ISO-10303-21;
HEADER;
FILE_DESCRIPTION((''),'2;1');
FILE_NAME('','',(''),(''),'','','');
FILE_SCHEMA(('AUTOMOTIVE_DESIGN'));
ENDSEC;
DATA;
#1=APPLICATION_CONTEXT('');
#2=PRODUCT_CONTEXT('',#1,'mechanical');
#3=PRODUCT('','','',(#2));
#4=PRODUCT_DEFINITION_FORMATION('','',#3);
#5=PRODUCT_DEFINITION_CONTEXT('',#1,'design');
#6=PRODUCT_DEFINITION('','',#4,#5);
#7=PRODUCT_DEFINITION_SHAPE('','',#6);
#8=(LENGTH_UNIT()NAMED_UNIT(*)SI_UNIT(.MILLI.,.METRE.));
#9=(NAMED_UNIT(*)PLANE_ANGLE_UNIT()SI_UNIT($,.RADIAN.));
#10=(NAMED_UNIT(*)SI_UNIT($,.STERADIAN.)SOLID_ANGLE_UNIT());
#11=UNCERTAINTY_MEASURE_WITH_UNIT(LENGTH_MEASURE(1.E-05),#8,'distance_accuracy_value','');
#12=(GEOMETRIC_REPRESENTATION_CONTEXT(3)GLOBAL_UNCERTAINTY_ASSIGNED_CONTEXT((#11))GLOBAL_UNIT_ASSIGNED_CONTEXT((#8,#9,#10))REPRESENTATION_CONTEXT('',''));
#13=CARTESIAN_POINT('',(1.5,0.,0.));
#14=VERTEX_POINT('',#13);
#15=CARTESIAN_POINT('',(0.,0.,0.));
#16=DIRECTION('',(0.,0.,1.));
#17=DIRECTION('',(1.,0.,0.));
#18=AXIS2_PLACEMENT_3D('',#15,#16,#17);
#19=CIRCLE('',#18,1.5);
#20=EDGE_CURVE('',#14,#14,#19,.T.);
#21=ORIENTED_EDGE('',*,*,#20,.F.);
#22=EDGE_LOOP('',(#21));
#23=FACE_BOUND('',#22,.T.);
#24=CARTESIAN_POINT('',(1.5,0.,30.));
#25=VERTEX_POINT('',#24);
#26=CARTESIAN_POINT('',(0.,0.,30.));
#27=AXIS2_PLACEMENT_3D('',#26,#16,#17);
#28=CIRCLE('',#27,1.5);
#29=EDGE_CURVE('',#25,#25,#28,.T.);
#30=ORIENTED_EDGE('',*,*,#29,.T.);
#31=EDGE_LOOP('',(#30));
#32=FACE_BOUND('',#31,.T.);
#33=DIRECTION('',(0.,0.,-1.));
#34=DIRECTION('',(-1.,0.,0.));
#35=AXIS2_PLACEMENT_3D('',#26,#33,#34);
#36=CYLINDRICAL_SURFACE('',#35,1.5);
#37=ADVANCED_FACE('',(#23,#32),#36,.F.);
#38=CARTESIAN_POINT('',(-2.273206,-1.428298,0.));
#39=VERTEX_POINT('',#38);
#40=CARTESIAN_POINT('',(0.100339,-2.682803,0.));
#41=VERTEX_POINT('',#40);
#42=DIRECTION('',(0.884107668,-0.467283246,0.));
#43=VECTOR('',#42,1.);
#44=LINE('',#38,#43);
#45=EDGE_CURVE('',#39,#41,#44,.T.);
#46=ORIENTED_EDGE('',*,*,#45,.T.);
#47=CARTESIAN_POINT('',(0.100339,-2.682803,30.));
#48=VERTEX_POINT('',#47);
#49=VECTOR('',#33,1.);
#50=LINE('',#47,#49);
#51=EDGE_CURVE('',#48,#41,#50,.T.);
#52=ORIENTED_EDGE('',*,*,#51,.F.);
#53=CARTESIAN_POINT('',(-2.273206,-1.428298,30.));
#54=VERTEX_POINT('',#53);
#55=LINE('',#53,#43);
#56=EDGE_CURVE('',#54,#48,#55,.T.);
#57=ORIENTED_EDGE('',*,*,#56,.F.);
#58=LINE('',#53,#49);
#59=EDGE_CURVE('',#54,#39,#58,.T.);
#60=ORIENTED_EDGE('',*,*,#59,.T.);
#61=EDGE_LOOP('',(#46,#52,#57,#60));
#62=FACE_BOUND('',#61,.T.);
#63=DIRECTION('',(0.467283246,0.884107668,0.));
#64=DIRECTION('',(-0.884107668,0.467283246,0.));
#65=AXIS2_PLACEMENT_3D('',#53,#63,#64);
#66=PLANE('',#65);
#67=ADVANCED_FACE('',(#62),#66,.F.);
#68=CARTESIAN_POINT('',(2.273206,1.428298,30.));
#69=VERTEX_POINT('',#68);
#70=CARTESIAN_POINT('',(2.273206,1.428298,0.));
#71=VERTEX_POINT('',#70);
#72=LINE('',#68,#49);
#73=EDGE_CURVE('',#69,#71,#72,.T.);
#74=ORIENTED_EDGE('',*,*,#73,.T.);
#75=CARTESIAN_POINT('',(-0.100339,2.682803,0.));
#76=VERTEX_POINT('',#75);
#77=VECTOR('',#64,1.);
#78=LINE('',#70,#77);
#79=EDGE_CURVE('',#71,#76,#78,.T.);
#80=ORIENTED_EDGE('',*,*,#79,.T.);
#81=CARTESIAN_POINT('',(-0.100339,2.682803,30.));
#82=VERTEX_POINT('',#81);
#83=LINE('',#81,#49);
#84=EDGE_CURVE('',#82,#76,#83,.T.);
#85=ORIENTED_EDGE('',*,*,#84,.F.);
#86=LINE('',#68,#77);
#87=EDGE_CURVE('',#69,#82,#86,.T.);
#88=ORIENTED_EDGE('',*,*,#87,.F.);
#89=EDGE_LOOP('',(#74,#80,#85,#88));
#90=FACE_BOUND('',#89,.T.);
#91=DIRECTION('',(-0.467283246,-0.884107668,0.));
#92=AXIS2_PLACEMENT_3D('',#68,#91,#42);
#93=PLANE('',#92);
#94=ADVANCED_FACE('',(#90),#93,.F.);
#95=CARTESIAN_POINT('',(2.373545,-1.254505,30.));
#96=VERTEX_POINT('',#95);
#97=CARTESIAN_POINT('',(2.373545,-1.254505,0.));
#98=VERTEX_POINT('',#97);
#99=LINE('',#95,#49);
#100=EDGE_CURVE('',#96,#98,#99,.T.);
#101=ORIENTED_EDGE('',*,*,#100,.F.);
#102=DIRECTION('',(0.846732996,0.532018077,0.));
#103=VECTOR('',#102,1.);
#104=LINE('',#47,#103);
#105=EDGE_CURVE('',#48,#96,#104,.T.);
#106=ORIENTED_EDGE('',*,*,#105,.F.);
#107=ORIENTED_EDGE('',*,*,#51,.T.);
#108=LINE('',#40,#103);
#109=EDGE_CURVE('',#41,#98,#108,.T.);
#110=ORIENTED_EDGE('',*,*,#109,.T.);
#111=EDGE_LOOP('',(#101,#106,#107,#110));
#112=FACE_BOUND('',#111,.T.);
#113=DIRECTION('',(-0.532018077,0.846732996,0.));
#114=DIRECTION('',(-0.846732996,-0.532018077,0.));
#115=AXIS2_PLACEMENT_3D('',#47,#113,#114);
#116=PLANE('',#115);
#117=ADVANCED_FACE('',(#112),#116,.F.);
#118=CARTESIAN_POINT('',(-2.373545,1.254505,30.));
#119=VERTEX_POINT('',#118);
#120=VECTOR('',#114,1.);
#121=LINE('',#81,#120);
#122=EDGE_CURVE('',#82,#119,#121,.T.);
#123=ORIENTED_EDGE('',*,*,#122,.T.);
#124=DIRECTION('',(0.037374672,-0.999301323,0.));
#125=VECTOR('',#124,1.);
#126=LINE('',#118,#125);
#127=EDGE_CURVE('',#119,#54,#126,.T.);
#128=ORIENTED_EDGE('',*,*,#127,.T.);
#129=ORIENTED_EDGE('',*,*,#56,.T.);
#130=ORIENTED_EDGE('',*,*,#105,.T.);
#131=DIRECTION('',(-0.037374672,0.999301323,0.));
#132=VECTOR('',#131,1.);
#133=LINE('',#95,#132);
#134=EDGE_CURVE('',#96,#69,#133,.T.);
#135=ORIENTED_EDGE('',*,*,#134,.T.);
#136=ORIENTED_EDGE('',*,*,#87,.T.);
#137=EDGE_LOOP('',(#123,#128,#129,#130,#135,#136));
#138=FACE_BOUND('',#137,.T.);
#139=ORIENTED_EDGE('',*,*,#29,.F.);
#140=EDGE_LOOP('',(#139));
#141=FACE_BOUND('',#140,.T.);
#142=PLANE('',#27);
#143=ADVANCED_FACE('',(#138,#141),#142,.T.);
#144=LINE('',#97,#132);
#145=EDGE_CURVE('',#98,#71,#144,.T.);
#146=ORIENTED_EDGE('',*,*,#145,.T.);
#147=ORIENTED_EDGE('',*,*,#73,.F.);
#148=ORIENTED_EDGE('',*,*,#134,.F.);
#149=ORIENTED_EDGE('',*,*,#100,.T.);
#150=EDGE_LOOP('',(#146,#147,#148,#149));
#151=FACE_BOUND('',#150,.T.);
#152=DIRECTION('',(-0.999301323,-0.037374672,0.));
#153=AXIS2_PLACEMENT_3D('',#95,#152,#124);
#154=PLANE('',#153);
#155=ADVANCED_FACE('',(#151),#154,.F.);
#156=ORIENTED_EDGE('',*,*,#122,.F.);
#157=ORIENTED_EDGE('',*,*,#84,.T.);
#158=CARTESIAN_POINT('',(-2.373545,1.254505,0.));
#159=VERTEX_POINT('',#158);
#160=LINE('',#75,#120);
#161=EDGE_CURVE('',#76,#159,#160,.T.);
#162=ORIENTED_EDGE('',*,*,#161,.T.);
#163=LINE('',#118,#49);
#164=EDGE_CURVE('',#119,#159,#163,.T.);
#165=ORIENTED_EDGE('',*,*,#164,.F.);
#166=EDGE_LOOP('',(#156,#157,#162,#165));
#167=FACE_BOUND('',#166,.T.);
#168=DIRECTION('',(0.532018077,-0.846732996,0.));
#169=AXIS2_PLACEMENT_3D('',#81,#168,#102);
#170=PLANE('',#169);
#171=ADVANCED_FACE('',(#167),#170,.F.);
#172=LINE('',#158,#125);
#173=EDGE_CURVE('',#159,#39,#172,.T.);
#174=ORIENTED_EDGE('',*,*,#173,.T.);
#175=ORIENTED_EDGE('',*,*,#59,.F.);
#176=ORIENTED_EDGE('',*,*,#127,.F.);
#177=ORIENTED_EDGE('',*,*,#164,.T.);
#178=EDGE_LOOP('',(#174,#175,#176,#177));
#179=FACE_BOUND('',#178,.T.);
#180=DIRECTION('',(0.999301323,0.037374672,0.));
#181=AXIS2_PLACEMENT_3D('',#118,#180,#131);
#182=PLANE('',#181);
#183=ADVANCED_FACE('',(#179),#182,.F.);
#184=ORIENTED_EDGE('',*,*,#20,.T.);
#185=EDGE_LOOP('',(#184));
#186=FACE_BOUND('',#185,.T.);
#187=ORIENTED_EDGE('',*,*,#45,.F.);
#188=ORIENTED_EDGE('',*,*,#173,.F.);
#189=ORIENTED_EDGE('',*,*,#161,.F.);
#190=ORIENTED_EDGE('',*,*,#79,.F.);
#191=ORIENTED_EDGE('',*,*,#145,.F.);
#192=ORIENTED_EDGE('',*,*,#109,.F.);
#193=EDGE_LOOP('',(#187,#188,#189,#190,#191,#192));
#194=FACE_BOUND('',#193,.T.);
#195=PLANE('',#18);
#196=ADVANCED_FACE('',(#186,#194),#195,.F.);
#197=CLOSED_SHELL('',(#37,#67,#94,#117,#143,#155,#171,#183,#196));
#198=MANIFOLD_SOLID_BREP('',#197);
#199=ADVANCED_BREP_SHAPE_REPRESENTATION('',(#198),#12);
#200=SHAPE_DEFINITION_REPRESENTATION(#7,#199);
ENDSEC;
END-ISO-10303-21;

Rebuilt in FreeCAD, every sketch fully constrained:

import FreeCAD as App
import Part
import Sketcher

V = App.Vector


def add_polygon(sketch, points):
    """Adds a closed chain of lines whose ends are joined by coincident constraints."""
    first, n = sketch.GeometryCount, len(points)
    for a, b in zip(points, points[1:] + points[:1]):
        sketch.addGeometry(Part.LineSegment(App.Vector(*a, 0), App.Vector(*b, 0)), False)
    for i in range(n):
        sketch.addConstraint(Sketcher.Constraint("Coincident", first + i, 2, first + (i + 1) % n, 1))

doc = App.newDocument("Part")
body = doc.addObject("PartDesign::Body", "Body")

sketch1 = body.newObject("Sketcher::SketchObject", "Sketch")
sketch1.AttachmentSupport = (doc.getObject("XY_Plane"), [""])
sketch1.MapMode = "FlatFace"
add_polygon(sketch1, [(2.3, 1.4), (-0.1, 2.7), (-2.4, 1.3), (-2.3, -1.4), (0.1, -2.7), (2.4, -1.3)])
sketch1.addGeometry(Part.Circle(V(0, 0, 0), V(0, 0, 1), 1.5), False)
sketch1.addConstraint([
    Sketcher.Constraint("Coincident", 6, 3, -1, 1),
    Sketcher.Constraint("Symmetric", 0, 2, 3, 2, -1, 1),
    Sketcher.Constraint("Symmetric", 1, 2, 4, 2, -1, 1),
    Sketcher.Constraint("Symmetric", 2, 2, 5, 2, -1, 1),
    Sketcher.Constraint("Equal", 0, 1),
    Sketcher.Constraint("Equal", 1, 2),
    Sketcher.Constraint("Diameter", 6, 3.0),
    Sketcher.Constraint("DistanceY", 2, 2, 0, 2, 4.111101),
    Sketcher.Constraint("Distance", 0, 2.684679),
    Sketcher.Constraint("DistanceX", 0, 2, -1, 1, 0.100339),
    Sketcher.Constraint("DistanceX", 1, 2, 2, 2, 0.100339),
])
pad1 = body.newObject("PartDesign::Pad", "Pad")
pad1.Profile = sketch1
pad1.Length = 30

doc.recompute()
